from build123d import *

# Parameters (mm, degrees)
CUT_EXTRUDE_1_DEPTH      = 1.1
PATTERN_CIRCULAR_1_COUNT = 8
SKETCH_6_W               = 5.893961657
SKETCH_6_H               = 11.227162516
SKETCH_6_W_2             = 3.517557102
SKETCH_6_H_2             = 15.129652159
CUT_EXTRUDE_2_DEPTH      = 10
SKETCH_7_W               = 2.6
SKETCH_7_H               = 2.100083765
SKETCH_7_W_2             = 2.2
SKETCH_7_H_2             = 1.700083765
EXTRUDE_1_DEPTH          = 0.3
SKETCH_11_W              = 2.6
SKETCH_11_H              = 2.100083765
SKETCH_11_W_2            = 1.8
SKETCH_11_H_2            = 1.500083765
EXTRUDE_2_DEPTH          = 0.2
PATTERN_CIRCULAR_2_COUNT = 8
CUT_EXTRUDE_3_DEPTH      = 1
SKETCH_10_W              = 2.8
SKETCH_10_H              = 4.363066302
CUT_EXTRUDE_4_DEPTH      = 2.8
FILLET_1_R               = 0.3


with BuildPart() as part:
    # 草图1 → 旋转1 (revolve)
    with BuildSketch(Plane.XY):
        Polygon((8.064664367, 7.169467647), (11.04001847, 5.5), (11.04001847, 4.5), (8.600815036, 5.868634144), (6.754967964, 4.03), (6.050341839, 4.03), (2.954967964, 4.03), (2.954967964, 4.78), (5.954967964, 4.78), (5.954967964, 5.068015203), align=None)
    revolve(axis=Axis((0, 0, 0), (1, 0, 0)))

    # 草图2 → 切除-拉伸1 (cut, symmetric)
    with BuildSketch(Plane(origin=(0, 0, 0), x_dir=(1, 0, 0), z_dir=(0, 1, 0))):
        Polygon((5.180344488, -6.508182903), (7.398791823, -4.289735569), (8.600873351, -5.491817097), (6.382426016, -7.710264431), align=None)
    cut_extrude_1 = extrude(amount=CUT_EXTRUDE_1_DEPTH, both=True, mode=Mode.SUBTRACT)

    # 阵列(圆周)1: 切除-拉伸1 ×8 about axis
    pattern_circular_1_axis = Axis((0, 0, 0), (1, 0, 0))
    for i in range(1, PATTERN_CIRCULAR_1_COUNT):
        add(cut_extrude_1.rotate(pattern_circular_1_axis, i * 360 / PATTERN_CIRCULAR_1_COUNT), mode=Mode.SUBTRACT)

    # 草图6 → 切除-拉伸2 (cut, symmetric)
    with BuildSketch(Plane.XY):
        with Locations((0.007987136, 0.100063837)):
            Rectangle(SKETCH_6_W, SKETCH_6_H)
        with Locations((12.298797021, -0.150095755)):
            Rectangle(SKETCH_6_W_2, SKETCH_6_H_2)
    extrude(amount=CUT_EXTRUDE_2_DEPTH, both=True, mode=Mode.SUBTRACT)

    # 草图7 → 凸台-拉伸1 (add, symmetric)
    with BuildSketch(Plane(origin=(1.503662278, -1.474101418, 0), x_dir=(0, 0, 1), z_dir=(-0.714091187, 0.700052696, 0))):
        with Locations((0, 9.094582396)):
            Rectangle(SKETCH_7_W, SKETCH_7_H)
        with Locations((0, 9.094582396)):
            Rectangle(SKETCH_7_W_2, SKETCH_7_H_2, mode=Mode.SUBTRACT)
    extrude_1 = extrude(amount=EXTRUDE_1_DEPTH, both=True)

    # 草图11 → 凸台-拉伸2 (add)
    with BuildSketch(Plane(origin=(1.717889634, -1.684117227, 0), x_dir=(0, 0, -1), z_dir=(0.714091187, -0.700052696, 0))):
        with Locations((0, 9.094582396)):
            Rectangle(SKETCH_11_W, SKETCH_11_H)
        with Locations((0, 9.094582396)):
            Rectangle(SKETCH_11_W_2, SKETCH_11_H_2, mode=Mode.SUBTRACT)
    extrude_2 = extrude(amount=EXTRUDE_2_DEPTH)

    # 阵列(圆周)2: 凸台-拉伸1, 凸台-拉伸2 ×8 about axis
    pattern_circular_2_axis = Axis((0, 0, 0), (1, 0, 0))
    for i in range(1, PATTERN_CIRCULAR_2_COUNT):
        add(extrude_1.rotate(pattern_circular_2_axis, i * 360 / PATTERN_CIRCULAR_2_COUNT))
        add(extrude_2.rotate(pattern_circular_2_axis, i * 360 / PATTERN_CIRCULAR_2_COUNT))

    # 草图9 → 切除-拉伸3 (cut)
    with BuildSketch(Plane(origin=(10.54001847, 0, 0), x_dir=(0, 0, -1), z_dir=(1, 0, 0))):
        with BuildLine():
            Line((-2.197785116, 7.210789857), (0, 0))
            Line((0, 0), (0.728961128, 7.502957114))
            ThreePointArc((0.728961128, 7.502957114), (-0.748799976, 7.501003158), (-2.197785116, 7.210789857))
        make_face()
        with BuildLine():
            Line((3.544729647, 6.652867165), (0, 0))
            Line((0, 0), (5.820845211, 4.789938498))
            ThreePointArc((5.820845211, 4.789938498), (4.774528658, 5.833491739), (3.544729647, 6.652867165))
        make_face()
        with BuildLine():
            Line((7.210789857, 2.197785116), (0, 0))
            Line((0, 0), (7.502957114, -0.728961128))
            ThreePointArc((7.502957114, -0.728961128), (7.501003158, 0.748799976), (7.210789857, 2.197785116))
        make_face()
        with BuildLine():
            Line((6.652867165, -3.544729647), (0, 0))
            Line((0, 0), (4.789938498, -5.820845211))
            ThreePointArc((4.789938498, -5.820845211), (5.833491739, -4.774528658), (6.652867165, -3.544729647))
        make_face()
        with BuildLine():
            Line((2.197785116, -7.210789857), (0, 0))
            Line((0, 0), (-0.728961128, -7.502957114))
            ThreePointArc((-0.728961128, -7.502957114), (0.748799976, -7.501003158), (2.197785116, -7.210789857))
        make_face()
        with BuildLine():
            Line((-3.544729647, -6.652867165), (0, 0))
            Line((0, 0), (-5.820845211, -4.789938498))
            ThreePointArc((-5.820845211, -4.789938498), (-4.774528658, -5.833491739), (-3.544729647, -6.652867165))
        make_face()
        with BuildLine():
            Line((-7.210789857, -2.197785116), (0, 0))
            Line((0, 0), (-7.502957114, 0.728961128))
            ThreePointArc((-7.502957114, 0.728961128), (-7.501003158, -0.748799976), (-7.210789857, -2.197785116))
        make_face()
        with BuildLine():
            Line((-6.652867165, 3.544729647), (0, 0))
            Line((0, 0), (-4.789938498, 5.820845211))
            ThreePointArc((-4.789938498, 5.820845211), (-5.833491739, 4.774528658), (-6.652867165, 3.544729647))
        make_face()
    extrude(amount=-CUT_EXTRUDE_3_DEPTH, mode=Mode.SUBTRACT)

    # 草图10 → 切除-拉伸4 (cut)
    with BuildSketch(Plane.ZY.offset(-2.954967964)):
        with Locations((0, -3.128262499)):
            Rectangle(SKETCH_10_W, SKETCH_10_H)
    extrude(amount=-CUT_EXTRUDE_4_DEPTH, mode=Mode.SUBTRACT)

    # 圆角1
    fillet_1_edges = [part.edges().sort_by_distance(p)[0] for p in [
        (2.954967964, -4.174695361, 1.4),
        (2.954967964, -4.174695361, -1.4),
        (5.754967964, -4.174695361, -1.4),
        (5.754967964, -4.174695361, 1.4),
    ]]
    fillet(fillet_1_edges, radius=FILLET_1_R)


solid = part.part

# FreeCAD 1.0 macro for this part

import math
import FreeCAD as App
import Part
import Sketcher

V = App.Vector
Q = App.Units.Quantity


def edges_at(feature, points):
    """Names of the edges that pass closest to the given points."""
    edges = feature.Shape.Edges
    near = lambda p: min(range(len(edges)), key=lambda i: edges[i].distToShape(Part.Vertex(*p))[0])
    return sorted({f"Edge{near(p) + 1}" for p in points})


def add_polygon(sketch, points):
    """Adds a closed chain of lines whose ends are joined by coincident constraints."""
    first, n = sketch.GeometryCount, len(points)
    for a, b in zip(points, points[1:] + points[:1]):
        sketch.addGeometry(Part.LineSegment(App.Vector(*a, 0), App.Vector(*b, 0)), False)
    for i in range(n):
        sketch.addConstraint(Sketcher.Constraint("Coincident", first + i, 2, first + (i + 1) % n, 1))

doc = App.newDocument("Part")
body = doc.addObject("PartDesign::Body", "Body")

sketch1 = body.newObject("Sketcher::SketchObject", "Sketch")
sketch1.AttachmentSupport = (doc.getObject("XY_Plane"), [""])
sketch1.MapMode = "FlatFace"
add_polygon(sketch1, [(11.040018, 5.5), (8.064664, 7.169468), (5.954968, 5.068015), (5.954968, 4.78), (2.954968, 4.78), (2.954968, 4.03), (6.754968, 4.03), (8.600815, 5.868634), (11.040018, 4.5)])
sketch1.addConstraint([
    Sketcher.Constraint("Vertical", 2),
    Sketcher.Constraint("Horizontal", 3),
    Sketcher.Constraint("Vertical", 4),
    Sketcher.Constraint("Horizontal", 5),
    Sketcher.Constraint("Vertical", 8),
    Sketcher.Constraint("Parallel", 1, 6),
    Sketcher.Constraint("Parallel", 0, 7),
    Sketcher.Constraint("DistanceX", 3, 2, 3, 1, 3.0),
    Sketcher.Constraint("DistanceY", 8, 1, 8, 2, 1.0),
    Sketcher.Constraint("DistanceX", 5, 1, 5, 2, 3.8),
    Sketcher.Constraint("DistanceY", 4, 2, 4, 1, 0.75),
    Sketcher.Constraint("DistanceY", -1, 1, 7, 2, 4.5),
    Sketcher.Constraint("DistanceY", -1, 1, 2, 2, 4.78),
    Sketcher.Constraint("Distance", 7, 2.79694),
    Sketcher.Constraint("DistanceY", 2, 2, 2, 1, 0.288015),
    Sketcher.Constraint("DistanceX", -1, 1, 7, 2, 11.040018),
    Sketcher.Constraint("DistanceX", 0, 2, 6, 2, 0.536151),
    Sketcher.Constraint("DistanceY", 1, 2, 6, 2, 0.800619),
])
revolution = body.newObject("PartDesign::Revolution", "Revolution")
revolution.Profile = sketch1
revolution.ReferenceAxis = (sketch1, ["H_Axis"])
revolution.Angle = 360

sketch2 = body.newObject("Sketcher::SketchObject", "Sketch001")
sketch2.AttachmentSupport = (doc.getObject("XZ_Plane"), [""])
sketch2.MapMode = "FlatFace"
add_polygon(sketch2, [(7.398792, 4.289736), (5.180344, 6.508183), (6.382426, 7.710264), (8.600873, 5.491817)])
sketch2.addConstraint([
    Sketcher.Constraint("Perpendicular", 0, 1),
    Sketcher.Constraint("Perpendicular", 1, 2),
    Sketcher.Constraint("Perpendicular", 2, 3),
    Sketcher.Constraint("Angle", 0, Q("135 deg")),
    Sketcher.Constraint("Distance", 1, 1.7),
    Sketcher.Constraint("Distance", 0, 3.137358),
    Sketcher.Constraint("DistanceX", -1, 1, 3, 2, 7.398792),
    Sketcher.Constraint("DistanceY", -1, 1, 0, 2, 6.508183),
])
pocket1 = body.newObject("PartDesign::Pocket", "Pocket")
pocket1.Profile = sketch2
pocket1.Length = 2.2
pocket1.Midplane = True
doc.recompute()

polarpattern = body.newObject("PartDesign::PolarPattern", "PolarPattern")
polarpattern.Originals = [pocket1]
polarpattern.Axis = (doc.getObject("X_Axis"), [""])
polarpattern.Angle = 360
polarpattern.Occurrences = 8
body.Tip = polarpattern

sketch3 = body.newObject("Sketcher::SketchObject", "Sketch002")
sketch3.AttachmentSupport = (doc.getObject("XY_Plane"), [""])
sketch3.MapMode = "FlatFace"
add_polygon(sketch3, [(-2.938994, 5.713645), (-2.938994, -5.513517), (2.954968, -5.513517), (2.954968, 5.713645)])
add_polygon(sketch3, [(10.540018, 7.41473), (10.540018, -7.714922), (14.057576, -7.714922), (14.057576, 7.41473)])
sketch3.addConstraint([
    Sketcher.Constraint("Vertical", 0),
    Sketcher.Constraint("Horizontal", 1),
    Sketcher.Constraint("Vertical", 2),
    Sketcher.Constraint("Horizontal", 3),
    Sketcher.Constraint("Vertical", 4),
    Sketcher.Constraint("Horizontal", 5),
    Sketcher.Constraint("Vertical", 6),
    Sketcher.Constraint("Horizontal", 7),
    Sketcher.Constraint("DistanceX", 1, 1, 1, 2, 5.893962),
    Sketcher.Constraint("DistanceX", 5, 1, 5, 2, 3.517557),
    Sketcher.Constraint("DistanceY", 0, 2, 0, 1, 11.227163),
    Sketcher.Constraint("DistanceY", 4, 2, 4, 1, 15.129652),
    Sketcher.Constraint("DistanceX", -1, 1, 4, 2, 10.540018),
    Sketcher.Constraint("DistanceY", 4, 2, -1, 1, 7.714922),
    Sketcher.Constraint("DistanceX", 1, 2, 4, 2, 7.585051),
    Sketcher.Constraint("DistanceY", 0, 2, -1, 1, 5.513517),
])
pocket2 = body.newObject("PartDesign::Pocket", "Pocket001")
pocket2.Profile = sketch3
pocket2.Length = 20
pocket2.Midplane = True

sketch4 = body.newObject("Sketcher::SketchObject", "Sketch003")
sketch4.Placement = App.Placement(V(1.503662, -1.474101, 0), App.Rotation(V(0, 0, 1), V(0.700052696, 0.714091187, 0), V(-0.714091187, 0.700052696, 0), "ZXY"))
add_polygon(sketch4, [(-1.3, 10.144624), (-1.3, 8.044541), (1.3, 8.044541), (1.3, 10.144624)])
add_polygon(sketch4, [(1.1, 8.244541), (-1.1, 8.244541), (-1.1, 9.944624), (1.1, 9.944624)])
sketch4.addConstraint([
    Sketcher.Constraint("Vertical", 0),
    Sketcher.Constraint("Horizontal", 1),
    Sketcher.Constraint("Vertical", 2),
    Sketcher.Constraint("Horizontal", 3),
    Sketcher.Constraint("Horizontal", 4),
    Sketcher.Constraint("Vertical", 5),
    Sketcher.Constraint("Horizontal", 6),
    Sketcher.Constraint("Vertical", 7),
    Sketcher.Constraint("DistanceX", 1, 1, 1, 2, 2.6),
    Sketcher.Constraint("DistanceX", 4, 2, 4, 1, 2.2),
    Sketcher.Constraint("DistanceX", 0, 2, -1, 1, 1.3),
    Sketcher.Constraint("DistanceX", 4, 2, -1, 1, 1.1),
    Sketcher.Constraint("DistanceY", 0, 2, 4, 2, 0.2),
    Sketcher.Constraint("DistanceY", 5, 2, 3, 2, 0.2),
    Sketcher.Constraint("DistanceY", 0, 2, 0, 1, 2.100084),
    Sketcher.Constraint("DistanceY", -1, 1, 0, 2, 8.044541),
])
pad1 = body.newObject("PartDesign::Pad", "Pad")
pad1.Profile = sketch4
pad1.Length = 0.6
pad1.Midplane = True

sketch5 = body.newObject("Sketcher::SketchObject", "Sketch004")
sketch5.Placement = App.Placement(V(1.71789, -1.684117, 0), App.Rotation(V(0, 0, -1), V(0.700052696, 0.714091187, 0), V(0.714091187, -0.700052696, 0), "ZXY"))
add_polygon(sketch5, [(-1.3, 10.144624), (-1.3, 8.044541), (1.3, 8.044541), (1.3, 10.144624)])
add_polygon(sketch5, [(0.9, 8.344541), (-0.9, 8.344541), (-0.9, 9.844624), (0.9, 9.844624)])
sketch5.addConstraint([
    Sketcher.Constraint("Vertical", 0),
    Sketcher.Constraint("Horizontal", 1),
    Sketcher.Constraint("Vertical", 2),
    Sketcher.Constraint("Horizontal", 3),
    Sketcher.Constraint("Horizontal", 4),
    Sketcher.Constraint("Vertical", 5),
    Sketcher.Constraint("Horizontal", 6),
    Sketcher.Constraint("Vertical", 7),
    Sketcher.Constraint("DistanceX", 1, 1, 1, 2, 2.6),
    Sketcher.Constraint("DistanceX", 4, 2, 4, 1, 1.8),
    Sketcher.Constraint("DistanceX", 0, 2, -1, 1, 1.3),
    Sketcher.Constraint("DistanceX", 4, 2, -1, 1, 0.9),
    Sketcher.Constraint("DistanceY", 0, 2, 4, 2, 0.3),
    Sketcher.Constraint("DistanceY", 5, 2, 3, 2, 0.3),
    Sketcher.Constraint("DistanceY", 0, 2, 0, 1, 2.100084),
    Sketcher.Constraint("DistanceY", -1, 1, 0, 2, 8.044541),
])
pad2 = body.newObject("PartDesign::Pad", "Pad001")
pad2.Profile = sketch5
pad2.Length = 0.2
doc.recompute()

polarpattern2 = body.newObject("PartDesign::PolarPattern", "PolarPattern001")
polarpattern2.Originals = [pad1, pad2]
polarpattern2.Axis = (doc.getObject("X_Axis"), [""])
polarpattern2.Angle = 360
polarpattern2.Occurrences = 8
body.Tip = polarpattern2

sketch6 = body.newObject("Sketcher::SketchObject", "Sketch005")
sketch6.AttachmentSupport = (doc.getObject("YZ_Plane"), [""])
sketch6.MapMode = "FlatFace"
sketch6.AttachmentOffset = App.Placement(V(0, 0, 10.540018), App.Rotation())
sketch6.addGeometry([
    Part.LineSegment(V(7.21079, 2.197785, 0), V(0, 0, 0)),
    Part.LineSegment(V(0, 0, 0), V(7.502957, -0.728961, 0)),
    Part.ArcOfCircle(Part.Circle(V(0, 0, 0), V(0, 0, 1), 7.538286), math.radians(-5.549241), math.radians(16.950759)),
    Part.LineSegment(V(6.652867, -3.54473, 0), V(0, 0, 0)),
    Part.LineSegment(V(0, 0, 0), V(4.789938, -5.820845, 0)),
    Part.ArcOfCircle(Part.Circle(V(0, 0, 0), V(0, 0, 1), 7.538286), math.radians(-50.549241), math.radians(-28.049241)),
    Part.LineSegment(V(2.197785, -7.21079, 0), V(0, 0, 0)),
    Part.LineSegment(V(0, 0, 0), V(-0.728961, -7.502957, 0)),
    Part.ArcOfCircle(Part.Circle(V(0, 0, 0), V(0, 0, 1), 7.538286), math.radians(-95.549241), math.radians(-73.049241)),
    Part.LineSegment(V(-3.54473, -6.652867, 0), V(0, 0, 0)),
    Part.LineSegment(V(0, 0, 0), V(-5.820845, -4.789938, 0)),
    Part.ArcOfCircle(Part.Circle(V(0, 0, 0), V(0, 0, 1), 7.538286), math.radians(-140.549241), math.radians(-118.049241)),
    Part.LineSegment(V(-7.21079, -2.197785, 0), V(0, 0, 0)),
    Part.LineSegment(V(0, 0, 0), V(-7.502957, 0.728961, 0)),
    Part.ArcOfCircle(Part.Circle(V(0, 0, 0), V(0, 0, 1), 7.538286), math.radians(174.450759), math.radians(196.950759)),
    Part.LineSegment(V(-6.652867, 3.54473, 0), V(0, 0, 0)),
    Part.LineSegment(V(0, 0, 0), V(-4.789938, 5.820845, 0)),
    Part.ArcOfCircle(Part.Circle(V(0, 0, 0), V(0, 0, 1), 7.538286), math.radians(129.450759), math.radians(151.950759)),
    Part.LineSegment(V(-2.197785, 7.21079, 0), V(0, 0, 0)),
    Part.LineSegment(V(0, 0, 0), V(0.728961, 7.502957, 0)),
    Part.ArcOfCircle(Part.Circle(V(0, 0, 0), V(0, 0, 1), 7.538286), math.radians(84.450759), math.radians(106.950759)),
    Part.LineSegment(V(3.54473, 6.652867, 0), V(0, 0, 0)),
    Part.LineSegment(V(0, 0, 0), V(5.820845, 4.789938, 0)),
    Part.ArcOfCircle(Part.Circle(V(0, 0, 0), V(0, 0, 1), 7.538286), math.radians(39.450759), math.radians(61.950759)),
], False)
sketch6.addConstraint([
    Sketcher.Constraint("Coincident", 0, 2, 1, 1),
    Sketcher.Constraint("Coincident", 1, 2, 2, 1),
    Sketcher.Constraint("Coincident", 2, 2, 0, 1),
    Sketcher.Constraint("Coincident", 3, 2, 4, 1),
    Sketcher.Constraint("Coincident", 4, 2, 5, 1),
    Sketcher.Constraint("Coincident", 5, 2, 3, 1),
    Sketcher.Constraint("Coincident", 6, 2, 7, 1),
    Sketcher.Constraint("Coincident", 7, 2, 8, 1),
    Sketcher.Constraint("Coincident", 8, 2, 6, 1),
    Sketcher.Constraint("Coincident", 9, 2, 10, 1),
    Sketcher.Constraint("Coincident", 10, 2, 11, 1),
    Sketcher.Constraint("Coincident", 11, 2, 9, 1),
    Sketcher.Constraint("Coincident", 12, 2, 13, 1),
    Sketcher.Constraint("Coincident", 13, 2, 14, 1),
    Sketcher.Constraint("Coincident", 14, 2, 12, 1),
    Sketcher.Constraint("Coincident", 15, 2, 16, 1),
    Sketcher.Constraint("Coincident", 16, 2, 17, 1),
    Sketcher.Constraint("Coincident", 17, 2, 15, 1),
    Sketcher.Constraint("Coincident", 18, 2, 19, 1),
    Sketcher.Constraint("Coincident", 19, 2, 20, 1),
    Sketcher.Constraint("Coincident", 20, 2, 18, 1),
    Sketcher.Constraint("Coincident", 21, 2, 22, 1),
    Sketcher.Constraint("Coincident", 22, 2, 23, 1),
    Sketcher.Constraint("Coincident", 23, 2, 21, 1),
    Sketcher.Constraint("Coincident", 2, 3, -1, 1),
    Sketcher.Constraint("Coincident", 5, 3, -1, 1),
    Sketcher.Constraint("Coincident", 8, 3, -1, 1),
    Sketcher.Constraint("Coincident", 11, 3, -1, 1),
    Sketcher.Constraint("Coincident", 14, 3, -1, 1),
    Sketcher.Constraint("Coincident", 17, 3, -1, 1),
    Sketcher.Constraint("Coincident", 20, 3, -1, 1),
    Sketcher.Constraint("Coincident", 23, 3, -1, 1),
    Sketcher.Constraint("Coincident", 0, 2, -1, 1),
    Sketcher.Constraint("Coincident", 3, 2, -1, 1),
    Sketcher.Constraint("Coincident", 6, 2, -1, 1),
    Sketcher.Constraint("Coincident", 9, 2, -1, 1),
    Sketcher.Constraint("Coincident", 12, 2, -1, 1),
    Sketcher.Constraint("Coincident", 15, 2, -1, 1),
    Sketcher.Constraint("Coincident", 18, 2, -1, 1),
    Sketcher.Constraint("Coincident", 21, 2, -1, 1),
    Sketcher.Constraint("Equal", 2, 5),
    Sketcher.Constraint("Equal", 5, 8),
    Sketcher.Constraint("Equal", 8, 11),
    Sketcher.Constraint("Equal", 11, 14),
    Sketcher.Constraint("Equal", 14, 17),
    Sketcher.Constraint("Equal", 17, 20),
    Sketcher.Constraint("Equal", 20, 23),
    Sketcher.Constraint("Perpendicular", 0, 6),
    Sketcher.Constraint("Perpendicular", 1, 7),
    Sketcher.Constraint("Perpendicular", 3, 9),
    Sketcher.Constraint("Perpendicular", 4, 10),
    Sketcher.Constraint("Perpendicular", 6, 12),
    Sketcher.Constraint("Perpendicular", 7, 13),
    Sketcher.Constraint("Perpendicular", 9, 15),
    Sketcher.Constraint("Perpendicular", 10, 16),
    Sketcher.Constraint("Perpendicular", 12, 18),
    Sketcher.Constraint("Perpendicular", 13, 19),
    Sketcher.Constraint("Perpendicular", 15, 21),
    Sketcher.Constraint("Perpendicular", 16, 22),
    Sketcher.Constraint("Radius", 2, 7.538286),
    Sketcher.Constraint("DistanceX", 7, 2, 4, 2, 5.5189),
    Sketcher.Constraint("DistanceY", 1, 2, -1, 1, 0.728961),
    Sketcher.Constraint("DistanceX", -1, 1, 2, 2, 7.21079),
    Sketcher.Constraint("DistanceY", 5, 2, -1, 1, 3.54473),
])
pocket3 = body.newObject("PartDesign::Pocket", "Pocket002")
pocket3.Profile = sketch6
pocket3.Length = 1

sketch7 = body.newObject("Sketcher::SketchObject", "Sketch006")
sketch7.AttachmentSupport = (doc.getObject("YZ_Plane"), [""])
sketch7.MapMode = "FlatFace"
sketch7.AttachmentOffset = App.Placement(V(0, 0, 2.954968), App.Rotation())
add_polygon(sketch7, [(-0.946729, -1.4), (-5.309796, -1.4), (-5.309796, 1.4), (-0.946729, 1.4)])
sketch7.addConstraint([
    Sketcher.Constraint("Horizontal", 0),
    Sketcher.Constraint("Vertical", 1),
    Sketcher.Constraint("Horizontal", 2),
    Sketcher.Constraint("Vertical", 3),
    Sketcher.Constraint("DistanceY", 1, 1, 1, 2, 2.8),
    Sketcher.Constraint("DistanceY", 0, 2, -1, 1, 1.4),
    Sketcher.Constraint("DistanceX", 0, 2, 0, 1, 4.363066),
    Sketcher.Constraint("DistanceX", 2, 2, -1, 1, 0.946729),
])
pocket4 = body.newObject("PartDesign::Pocket", "Pocket003")
pocket4.Profile = sketch7
pocket4.Length = 2.8
pocket4.Reversed = True
doc.recompute()

fillet = body.newObject("PartDesign::Fillet", "Fillet")
fillet.Base = (pocket4, edges_at(pocket4, [
    (2.955, -4.175, 1.4),
    (2.955, -4.175, -1.4),
    (5.755, -4.175, -1.4),
    (5.755, -4.175, 1.4),
]))
fillet.Radius = 0.3

doc.recompute()
